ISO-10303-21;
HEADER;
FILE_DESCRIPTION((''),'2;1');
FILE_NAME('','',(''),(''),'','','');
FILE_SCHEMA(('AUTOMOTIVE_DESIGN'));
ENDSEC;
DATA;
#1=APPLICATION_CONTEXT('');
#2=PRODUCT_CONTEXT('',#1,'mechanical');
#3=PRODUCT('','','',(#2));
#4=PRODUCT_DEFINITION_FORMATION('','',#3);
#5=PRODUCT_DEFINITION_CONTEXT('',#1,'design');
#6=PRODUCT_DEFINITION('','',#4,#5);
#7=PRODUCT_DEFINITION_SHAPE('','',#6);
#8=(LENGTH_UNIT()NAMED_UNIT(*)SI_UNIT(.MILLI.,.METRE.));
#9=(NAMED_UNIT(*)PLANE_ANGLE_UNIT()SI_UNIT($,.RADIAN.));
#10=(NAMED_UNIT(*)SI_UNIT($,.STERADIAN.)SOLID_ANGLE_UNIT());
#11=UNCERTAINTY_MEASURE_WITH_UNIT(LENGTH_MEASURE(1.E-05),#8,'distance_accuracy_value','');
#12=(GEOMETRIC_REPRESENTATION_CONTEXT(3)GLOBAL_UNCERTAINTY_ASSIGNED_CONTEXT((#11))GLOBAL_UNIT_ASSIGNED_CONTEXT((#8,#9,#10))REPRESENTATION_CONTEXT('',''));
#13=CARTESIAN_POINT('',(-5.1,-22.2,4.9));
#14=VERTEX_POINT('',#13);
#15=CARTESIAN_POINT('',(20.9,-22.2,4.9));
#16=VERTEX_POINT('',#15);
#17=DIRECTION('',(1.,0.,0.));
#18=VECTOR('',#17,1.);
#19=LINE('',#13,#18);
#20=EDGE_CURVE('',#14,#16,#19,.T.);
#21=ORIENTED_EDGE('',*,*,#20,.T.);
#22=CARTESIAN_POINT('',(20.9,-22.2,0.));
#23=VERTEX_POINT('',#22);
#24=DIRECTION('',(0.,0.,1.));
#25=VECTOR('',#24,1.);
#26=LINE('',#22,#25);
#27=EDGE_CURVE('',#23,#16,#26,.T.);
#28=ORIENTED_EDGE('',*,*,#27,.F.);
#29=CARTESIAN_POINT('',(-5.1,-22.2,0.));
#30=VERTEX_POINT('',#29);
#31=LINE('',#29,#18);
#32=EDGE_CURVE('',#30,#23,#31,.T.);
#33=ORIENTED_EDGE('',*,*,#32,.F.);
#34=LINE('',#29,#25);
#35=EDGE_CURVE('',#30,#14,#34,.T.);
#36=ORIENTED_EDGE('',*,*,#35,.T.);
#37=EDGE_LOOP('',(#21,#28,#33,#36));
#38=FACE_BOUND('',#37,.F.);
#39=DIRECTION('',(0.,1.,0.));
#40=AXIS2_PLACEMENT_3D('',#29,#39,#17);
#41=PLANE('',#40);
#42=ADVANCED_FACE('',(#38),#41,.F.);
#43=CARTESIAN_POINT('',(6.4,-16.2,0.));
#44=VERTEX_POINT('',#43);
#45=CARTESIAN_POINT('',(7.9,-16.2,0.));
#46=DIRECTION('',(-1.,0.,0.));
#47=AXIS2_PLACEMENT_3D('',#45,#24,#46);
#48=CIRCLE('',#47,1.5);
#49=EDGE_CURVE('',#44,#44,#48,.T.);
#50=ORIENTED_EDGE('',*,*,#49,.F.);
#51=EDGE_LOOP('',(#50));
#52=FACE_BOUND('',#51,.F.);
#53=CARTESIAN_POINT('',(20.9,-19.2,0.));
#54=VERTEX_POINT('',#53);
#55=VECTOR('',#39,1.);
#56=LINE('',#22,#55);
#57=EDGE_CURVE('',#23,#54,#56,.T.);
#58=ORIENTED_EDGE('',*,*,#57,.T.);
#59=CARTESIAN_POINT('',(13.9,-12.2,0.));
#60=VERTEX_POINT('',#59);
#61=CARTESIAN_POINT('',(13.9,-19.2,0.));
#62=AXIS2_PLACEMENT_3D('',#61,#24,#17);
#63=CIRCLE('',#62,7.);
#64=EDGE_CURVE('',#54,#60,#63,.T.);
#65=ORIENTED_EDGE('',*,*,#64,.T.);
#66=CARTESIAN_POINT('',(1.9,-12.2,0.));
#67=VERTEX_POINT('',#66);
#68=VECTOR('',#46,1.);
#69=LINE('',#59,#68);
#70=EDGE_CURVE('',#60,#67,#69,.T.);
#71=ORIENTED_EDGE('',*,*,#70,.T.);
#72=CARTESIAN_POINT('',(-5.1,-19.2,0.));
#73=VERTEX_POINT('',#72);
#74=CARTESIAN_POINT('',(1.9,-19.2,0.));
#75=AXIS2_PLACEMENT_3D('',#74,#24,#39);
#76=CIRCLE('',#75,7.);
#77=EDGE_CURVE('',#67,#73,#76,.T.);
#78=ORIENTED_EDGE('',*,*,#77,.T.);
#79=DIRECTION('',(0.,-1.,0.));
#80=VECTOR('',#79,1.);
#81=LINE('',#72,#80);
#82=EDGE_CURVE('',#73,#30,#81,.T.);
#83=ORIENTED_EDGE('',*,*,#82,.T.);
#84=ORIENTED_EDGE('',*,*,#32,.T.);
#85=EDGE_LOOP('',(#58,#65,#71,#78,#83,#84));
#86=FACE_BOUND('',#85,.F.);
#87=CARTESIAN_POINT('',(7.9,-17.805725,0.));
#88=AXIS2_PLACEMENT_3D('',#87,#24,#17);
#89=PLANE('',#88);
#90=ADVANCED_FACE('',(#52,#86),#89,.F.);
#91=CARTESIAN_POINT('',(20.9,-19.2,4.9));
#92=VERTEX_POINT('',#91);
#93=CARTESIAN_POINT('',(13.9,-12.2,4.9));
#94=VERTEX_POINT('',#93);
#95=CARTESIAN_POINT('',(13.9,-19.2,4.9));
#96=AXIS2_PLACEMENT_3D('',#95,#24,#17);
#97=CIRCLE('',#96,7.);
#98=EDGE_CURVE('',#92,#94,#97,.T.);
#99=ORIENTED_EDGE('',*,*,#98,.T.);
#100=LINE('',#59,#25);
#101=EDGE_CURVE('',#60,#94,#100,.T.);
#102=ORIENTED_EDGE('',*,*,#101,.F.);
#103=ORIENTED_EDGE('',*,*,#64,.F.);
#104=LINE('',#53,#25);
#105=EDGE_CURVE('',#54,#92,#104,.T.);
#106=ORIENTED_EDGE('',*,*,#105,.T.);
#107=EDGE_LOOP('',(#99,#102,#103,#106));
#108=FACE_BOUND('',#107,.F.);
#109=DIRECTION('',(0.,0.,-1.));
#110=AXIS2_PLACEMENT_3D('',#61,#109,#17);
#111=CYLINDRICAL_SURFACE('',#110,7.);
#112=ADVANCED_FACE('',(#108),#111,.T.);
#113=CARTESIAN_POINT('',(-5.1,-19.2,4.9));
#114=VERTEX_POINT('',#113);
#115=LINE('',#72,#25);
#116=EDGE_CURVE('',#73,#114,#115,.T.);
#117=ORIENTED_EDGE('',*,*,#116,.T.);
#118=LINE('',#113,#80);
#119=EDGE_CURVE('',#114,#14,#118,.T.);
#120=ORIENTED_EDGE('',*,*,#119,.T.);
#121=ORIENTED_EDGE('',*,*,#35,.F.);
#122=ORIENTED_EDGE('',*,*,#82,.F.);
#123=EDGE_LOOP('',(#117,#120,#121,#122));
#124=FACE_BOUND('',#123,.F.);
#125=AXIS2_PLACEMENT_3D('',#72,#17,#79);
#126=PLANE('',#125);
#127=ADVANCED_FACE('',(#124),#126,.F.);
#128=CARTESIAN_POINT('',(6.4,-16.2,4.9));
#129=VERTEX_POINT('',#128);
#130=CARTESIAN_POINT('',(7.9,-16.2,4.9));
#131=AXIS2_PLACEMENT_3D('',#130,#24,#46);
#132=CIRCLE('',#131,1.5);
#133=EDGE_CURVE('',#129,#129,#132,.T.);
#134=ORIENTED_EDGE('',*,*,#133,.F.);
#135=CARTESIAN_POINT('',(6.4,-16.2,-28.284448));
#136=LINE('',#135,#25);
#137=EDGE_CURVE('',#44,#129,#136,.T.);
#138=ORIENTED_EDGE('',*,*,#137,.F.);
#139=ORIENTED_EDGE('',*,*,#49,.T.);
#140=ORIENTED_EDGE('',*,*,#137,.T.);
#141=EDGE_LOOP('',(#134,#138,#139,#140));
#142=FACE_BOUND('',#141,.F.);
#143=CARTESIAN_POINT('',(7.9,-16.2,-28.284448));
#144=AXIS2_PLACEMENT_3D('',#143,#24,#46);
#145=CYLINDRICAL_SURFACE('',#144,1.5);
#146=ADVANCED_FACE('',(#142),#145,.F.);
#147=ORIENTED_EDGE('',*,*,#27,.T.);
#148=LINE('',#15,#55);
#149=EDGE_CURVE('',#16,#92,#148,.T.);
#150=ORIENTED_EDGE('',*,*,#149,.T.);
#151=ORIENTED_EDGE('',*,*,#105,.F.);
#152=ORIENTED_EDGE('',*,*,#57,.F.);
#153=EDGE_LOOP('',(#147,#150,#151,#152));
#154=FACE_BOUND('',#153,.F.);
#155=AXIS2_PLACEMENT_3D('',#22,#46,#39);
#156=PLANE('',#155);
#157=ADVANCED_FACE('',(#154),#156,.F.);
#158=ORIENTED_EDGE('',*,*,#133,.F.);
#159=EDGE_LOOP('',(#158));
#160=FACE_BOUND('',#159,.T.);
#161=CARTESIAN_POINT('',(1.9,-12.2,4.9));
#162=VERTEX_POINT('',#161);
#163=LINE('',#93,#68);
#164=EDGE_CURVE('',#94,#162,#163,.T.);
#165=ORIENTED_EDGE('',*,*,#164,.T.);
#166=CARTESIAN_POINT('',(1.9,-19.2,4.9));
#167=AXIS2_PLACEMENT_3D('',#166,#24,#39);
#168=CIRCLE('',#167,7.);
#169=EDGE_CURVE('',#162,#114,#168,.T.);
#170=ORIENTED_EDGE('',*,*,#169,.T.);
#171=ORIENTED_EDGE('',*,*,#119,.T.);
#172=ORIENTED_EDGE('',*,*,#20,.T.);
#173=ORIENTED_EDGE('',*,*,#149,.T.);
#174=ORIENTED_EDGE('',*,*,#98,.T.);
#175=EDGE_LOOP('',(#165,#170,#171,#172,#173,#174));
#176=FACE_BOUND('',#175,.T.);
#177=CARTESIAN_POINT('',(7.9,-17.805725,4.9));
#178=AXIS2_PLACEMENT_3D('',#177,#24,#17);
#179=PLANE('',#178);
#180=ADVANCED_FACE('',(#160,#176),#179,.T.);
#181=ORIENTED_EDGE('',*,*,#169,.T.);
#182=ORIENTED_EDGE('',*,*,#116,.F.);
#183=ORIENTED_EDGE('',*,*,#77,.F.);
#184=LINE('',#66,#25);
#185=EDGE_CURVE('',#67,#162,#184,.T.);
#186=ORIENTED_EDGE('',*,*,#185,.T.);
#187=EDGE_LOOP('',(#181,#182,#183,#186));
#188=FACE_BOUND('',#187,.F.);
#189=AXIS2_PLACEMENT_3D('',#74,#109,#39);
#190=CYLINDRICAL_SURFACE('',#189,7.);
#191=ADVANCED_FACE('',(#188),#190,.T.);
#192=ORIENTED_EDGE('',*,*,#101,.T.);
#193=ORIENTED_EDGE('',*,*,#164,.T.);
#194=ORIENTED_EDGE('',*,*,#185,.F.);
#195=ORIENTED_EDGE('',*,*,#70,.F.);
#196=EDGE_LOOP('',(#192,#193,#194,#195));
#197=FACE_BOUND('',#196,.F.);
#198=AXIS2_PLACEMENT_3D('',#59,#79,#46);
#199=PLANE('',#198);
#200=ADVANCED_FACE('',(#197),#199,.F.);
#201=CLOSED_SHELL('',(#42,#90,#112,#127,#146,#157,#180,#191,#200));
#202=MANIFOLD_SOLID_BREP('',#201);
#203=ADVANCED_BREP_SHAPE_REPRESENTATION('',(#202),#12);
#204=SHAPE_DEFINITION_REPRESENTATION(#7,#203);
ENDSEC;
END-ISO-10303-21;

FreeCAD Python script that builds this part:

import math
import FreeCAD as App
import Part
import Sketcher
from FreeCAD import Vector
Q = App.Units.Quantity


def add_polygon(sketch, points):
    """Adds a closed chain of lines whose ends are joined by coincident constraints."""
    first, n = sketch.GeometryCount, len(points)
    for a, b in zip(points, points[1:] + points[:1]):
        sketch.addGeometry(Part.LineSegment(App.Vector(*a, 0), App.Vector(*b, 0)), False)
    for i in range(n):
        sketch.addConstraint(Sketcher.Constraint("Coincident", first + i, 2, first + (i + 1) % n, 1))

doc = App.newDocument("Part")
body = doc.addObject("PartDesign::Body", "Body")

# Sketch on XY plane
sketch1 = body.newObject("Sketcher::SketchObject", "Sketch")
sketch1.AttachmentSupport = (doc.getObject("XY_Plane"), [""])
sketch1.MapMode = "FlatFace"
add_polygon(sketch1, [(20.9, 30.9), (20.9, 16.5), (17.9, 16.5), (17.9, 13.2), (19.4, 11.7), (20.9, 11.7), (20.9, 4.9), (14.1, 4.9), (14.1, 6.4), (12.6, 7.9), (9.3, 7.9), (9.3, 4.9), (-5.1, 4.9), (-5.1, -0.1), (20.9, -0.1), (25.9, 4.9), (25.9, 30.9)])  # lines 0-16
sketch1.addConstraint([
    Sketcher.Constraint("Vertical", 0),
    Sketcher.Constraint("Horizontal", 1),
    Sketcher.Constraint("Vertical", 2),
    Sketcher.Constraint("Horizontal", 4),
    Sketcher.Constraint("Vertical", 5),
    Sketcher.Constraint("Horizontal", 6),
    Sketcher.Constraint("Vertical", 7),
    Sketcher.Constraint("Horizontal", 9),
    Sketcher.Constraint("Vertical", 10),
    Sketcher.Constraint("Horizontal", 11),
    Sketcher.Constraint("Vertical", 12),
    Sketcher.Constraint("Horizontal", 13),
    Sketcher.Constraint("Vertical", 15),
    Sketcher.Constraint("Horizontal", 16),
    Sketcher.Constraint("Parallel", 3, 8),
    Sketcher.Constraint("Perpendicular", 8, 14),
    Sketcher.Constraint("Horizontal", 6, 2, 10, 2),
    Sketcher.Constraint("Horizontal", 11, 2, 14, 2),
    Sketcher.Constraint("Vertical", 0, 2, 4, 2),
    Sketcher.Constraint("Vertical", 5, 2, 13, 2),
    Sketcher.Constraint("Equal", 11, 0),
    Sketcher.Constraint("Equal", 9, 2),
    Sketcher.Constraint("Equal", 6, 5),
    Sketcher.Constraint("Equal", 4, 7),
    Sketcher.Constraint("Equal", 1, 10),
    Sketcher.Constraint("Equal", 16, 12),
    Sketcher.Constraint("DistanceX", 1, 2, 1, 1, Q("3 mm")),
    Sketcher.Constraint("DistanceX", 13, 1, 13, 2, Q("26 mm")),
    Sketcher.Constraint("DistanceX", 16, 2, 16, 1, Q("5 mm")),
    Sketcher.Constraint("DistanceX", 4, 1, 4, 2, Q("1.5 mm")),
    Sketcher.Constraint("DistanceX", 6, 2, 6, 1, Q("6.8 mm")),
    Sketcher.Constraint("DistanceX", 9, 2, 9, 1, Q("3.3 mm")),
    Sketcher.Constraint("DistanceX", -1, 1, 0, 2, Q("20.9 mm")),
    Sketcher.Constraint("DistanceY", -1, 1, 0, 2, Q("16.5 mm")),
])
pad1 = body.newObject("PartDesign::Pad", "Pad")
pad1.Profile = sketch1
pad1.Length = 10

# Sketch on XY plane
sketch2 = body.newObject("Sketcher::SketchObject", "Sketch001")
sketch2.AttachmentSupport = (doc.getObject("XY_Plane"), [""])
sketch2.MapMode = "FlatFace"
add_polygon(sketch2, [(-5, 0), (-5, -12), (21, -12), (21, 0)])  # lines 0-3
sketch2.addConstraint([
    Sketcher.Constraint("Vertical", 0),
    Sketcher.Constraint("Horizontal", 1),
    Sketcher.Constraint("Vertical", 2),
    Sketcher.Constraint("Horizontal", 3),
    Sketcher.Constraint("DistanceX", 1, 1, 1, 2, Q("26 mm")),
    Sketcher.Constraint("DistanceY", 0, 2, 0, 1, Q("12 mm")),
    Sketcher.Constraint("DistanceX", 0, 2, -1, 1, Q("5.1 mm")),
    Sketcher.Constraint("DistanceY", 0, 2, -1, 1, Q("12.1 mm")),
])
pad2 = body.newObject("PartDesign::Pad", "Pad001")
pad2.Profile = sketch2
pad2.Length = 5

# Sketch on XY plane
sketch3 = body.newObject("Sketcher::SketchObject", "Sketch002")
sketch3.AttachmentSupport = (doc.getObject("XY_Plane"), [""])
sketch3.MapMode = "FlatFace"
sketch3.addGeometry(Part.Circle(Vector(7.9, -8.1, 0), Vector(0, 0, 1), 1.5), False)
sketch3.addConstraint([
    Sketcher.Constraint("Diameter", 0, Q("3 mm")),
    Sketcher.Constraint("DistanceX", -1, 1, 0, 3, Q("7.9 mm")),
    Sketcher.Constraint("DistanceY", 0, 3, -1, 1, Q("8.1 mm")),
])
doc.recompute()
hole = body.newObject("PartDesign::Hole", "Hole")
hole.Profile = sketch3
hole.ThreadType = "None"
hole.Diameter = 3
hole.DepthType = "ThroughAll"
hole.Reversed = True
body2 = doc.addObject("PartDesign::Body", "Body001")

# Sketch on XY plane
sketch4 = body2.newObject("Sketcher::SketchObject", "Sketch003")
sketch4.AttachmentSupport = (doc.getObject("XY_Plane001"), [""])
sketch4.MapMode = "FlatFace"
sketch4.addGeometry([
    Part.ArcOfCircle(Part.Circle(Vector(13.9, -19.2, 0), Vector(0, 0, 1), 7), math.radians(0), math.radians(90)),  # 0
    Part.LineSegment(Vector(13.9, -12.2, 0), Vector(1.9, -12.2, 0)),  # 1
    Part.ArcOfCircle(Part.Circle(Vector(1.9, -19.2, 0), Vector(0, 0, 1), 7), math.radians(90), math.radians(180)),  # 2
    Part.LineSegment(Vector(-5.1, -19.2, 0), Vector(-5.1, -22.2, 0)),  # 3
    Part.LineSegment(Vector(-5.1, -22.2, 0), Vector(20.9, -22.2, 0)),  # 4
    Part.LineSegment(Vector(20.9, -22.2, 0), Vector(20.9, -19.2, 0)),  # 5
], False)
sketch4.addConstraint([
    Sketcher.Constraint("Tangent", 0, 2, 1, 1),
    Sketcher.Constraint("Tangent", 1, 2, 2, 1),
    Sketcher.Constraint("Tangent", 2, 2, 3, 1),
    Sketcher.Constraint("Coincident", 3, 2, 4, 1),
    Sketcher.Constraint("Coincident", 4, 2, 5, 1),
    Sketcher.Constraint("Tangent", 5, 2, 0, 1),
    Sketcher.Constraint("Horizontal", 1),
    Sketcher.Constraint("Vertical", 3),
    Sketcher.Constraint("Horizontal", 4),
    Sketcher.Constraint("Vertical", 5),
    Sketcher.Constraint("Equal", 0, 2),
    Sketcher.Constraint("Radius", 0, Q("7 mm")),
    Sketcher.Constraint("DistanceX", 1, 2, 1, 1, Q("12 mm")),
    Sketcher.Constraint("DistanceY", 3, 2, 3, 1, Q("3 mm")),
    Sketcher.Constraint("DistanceX", -1, 1, 0, 3, Q("13.9 mm")),
    Sketcher.Constraint("DistanceY", 0, 3, -1, 1, Q("19.2 mm")),
])
pad3 = body2.newObject("PartDesign::Pad", "Pad002")
pad3.Profile = sketch4
pad3.Length = 4.9

# Sketch on XY plane
sketch5 = body2.newObject("Sketcher::SketchObject", "Sketch004")
sketch5.AttachmentSupport = (doc.getObject("XY_Plane001"), [""])
sketch5.MapMode = "FlatFace"
sketch5.addGeometry(Part.Circle(Vector(7.9, -16.2, 0), Vector(0, 0, 1), 1.5), False)
sketch5.addConstraint([
    Sketcher.Constraint("Diameter", 0, Q("3 mm")),
    Sketcher.Constraint("DistanceX", -1, 1, 0, 3, Q("7.9 mm")),
    Sketcher.Constraint("DistanceY", 0, 3, -1, 1, Q("16.2 mm")),
])
doc.recompute()
hole2 = body2.newObject("PartDesign::Hole", "Hole001")
hole2.Profile = sketch5
hole2.ThreadType = "None"
hole2.Diameter = 3
hole2.DepthType = "ThroughAll"
hole2.Reversed = True
body.Visibility = False

doc.recompute()
